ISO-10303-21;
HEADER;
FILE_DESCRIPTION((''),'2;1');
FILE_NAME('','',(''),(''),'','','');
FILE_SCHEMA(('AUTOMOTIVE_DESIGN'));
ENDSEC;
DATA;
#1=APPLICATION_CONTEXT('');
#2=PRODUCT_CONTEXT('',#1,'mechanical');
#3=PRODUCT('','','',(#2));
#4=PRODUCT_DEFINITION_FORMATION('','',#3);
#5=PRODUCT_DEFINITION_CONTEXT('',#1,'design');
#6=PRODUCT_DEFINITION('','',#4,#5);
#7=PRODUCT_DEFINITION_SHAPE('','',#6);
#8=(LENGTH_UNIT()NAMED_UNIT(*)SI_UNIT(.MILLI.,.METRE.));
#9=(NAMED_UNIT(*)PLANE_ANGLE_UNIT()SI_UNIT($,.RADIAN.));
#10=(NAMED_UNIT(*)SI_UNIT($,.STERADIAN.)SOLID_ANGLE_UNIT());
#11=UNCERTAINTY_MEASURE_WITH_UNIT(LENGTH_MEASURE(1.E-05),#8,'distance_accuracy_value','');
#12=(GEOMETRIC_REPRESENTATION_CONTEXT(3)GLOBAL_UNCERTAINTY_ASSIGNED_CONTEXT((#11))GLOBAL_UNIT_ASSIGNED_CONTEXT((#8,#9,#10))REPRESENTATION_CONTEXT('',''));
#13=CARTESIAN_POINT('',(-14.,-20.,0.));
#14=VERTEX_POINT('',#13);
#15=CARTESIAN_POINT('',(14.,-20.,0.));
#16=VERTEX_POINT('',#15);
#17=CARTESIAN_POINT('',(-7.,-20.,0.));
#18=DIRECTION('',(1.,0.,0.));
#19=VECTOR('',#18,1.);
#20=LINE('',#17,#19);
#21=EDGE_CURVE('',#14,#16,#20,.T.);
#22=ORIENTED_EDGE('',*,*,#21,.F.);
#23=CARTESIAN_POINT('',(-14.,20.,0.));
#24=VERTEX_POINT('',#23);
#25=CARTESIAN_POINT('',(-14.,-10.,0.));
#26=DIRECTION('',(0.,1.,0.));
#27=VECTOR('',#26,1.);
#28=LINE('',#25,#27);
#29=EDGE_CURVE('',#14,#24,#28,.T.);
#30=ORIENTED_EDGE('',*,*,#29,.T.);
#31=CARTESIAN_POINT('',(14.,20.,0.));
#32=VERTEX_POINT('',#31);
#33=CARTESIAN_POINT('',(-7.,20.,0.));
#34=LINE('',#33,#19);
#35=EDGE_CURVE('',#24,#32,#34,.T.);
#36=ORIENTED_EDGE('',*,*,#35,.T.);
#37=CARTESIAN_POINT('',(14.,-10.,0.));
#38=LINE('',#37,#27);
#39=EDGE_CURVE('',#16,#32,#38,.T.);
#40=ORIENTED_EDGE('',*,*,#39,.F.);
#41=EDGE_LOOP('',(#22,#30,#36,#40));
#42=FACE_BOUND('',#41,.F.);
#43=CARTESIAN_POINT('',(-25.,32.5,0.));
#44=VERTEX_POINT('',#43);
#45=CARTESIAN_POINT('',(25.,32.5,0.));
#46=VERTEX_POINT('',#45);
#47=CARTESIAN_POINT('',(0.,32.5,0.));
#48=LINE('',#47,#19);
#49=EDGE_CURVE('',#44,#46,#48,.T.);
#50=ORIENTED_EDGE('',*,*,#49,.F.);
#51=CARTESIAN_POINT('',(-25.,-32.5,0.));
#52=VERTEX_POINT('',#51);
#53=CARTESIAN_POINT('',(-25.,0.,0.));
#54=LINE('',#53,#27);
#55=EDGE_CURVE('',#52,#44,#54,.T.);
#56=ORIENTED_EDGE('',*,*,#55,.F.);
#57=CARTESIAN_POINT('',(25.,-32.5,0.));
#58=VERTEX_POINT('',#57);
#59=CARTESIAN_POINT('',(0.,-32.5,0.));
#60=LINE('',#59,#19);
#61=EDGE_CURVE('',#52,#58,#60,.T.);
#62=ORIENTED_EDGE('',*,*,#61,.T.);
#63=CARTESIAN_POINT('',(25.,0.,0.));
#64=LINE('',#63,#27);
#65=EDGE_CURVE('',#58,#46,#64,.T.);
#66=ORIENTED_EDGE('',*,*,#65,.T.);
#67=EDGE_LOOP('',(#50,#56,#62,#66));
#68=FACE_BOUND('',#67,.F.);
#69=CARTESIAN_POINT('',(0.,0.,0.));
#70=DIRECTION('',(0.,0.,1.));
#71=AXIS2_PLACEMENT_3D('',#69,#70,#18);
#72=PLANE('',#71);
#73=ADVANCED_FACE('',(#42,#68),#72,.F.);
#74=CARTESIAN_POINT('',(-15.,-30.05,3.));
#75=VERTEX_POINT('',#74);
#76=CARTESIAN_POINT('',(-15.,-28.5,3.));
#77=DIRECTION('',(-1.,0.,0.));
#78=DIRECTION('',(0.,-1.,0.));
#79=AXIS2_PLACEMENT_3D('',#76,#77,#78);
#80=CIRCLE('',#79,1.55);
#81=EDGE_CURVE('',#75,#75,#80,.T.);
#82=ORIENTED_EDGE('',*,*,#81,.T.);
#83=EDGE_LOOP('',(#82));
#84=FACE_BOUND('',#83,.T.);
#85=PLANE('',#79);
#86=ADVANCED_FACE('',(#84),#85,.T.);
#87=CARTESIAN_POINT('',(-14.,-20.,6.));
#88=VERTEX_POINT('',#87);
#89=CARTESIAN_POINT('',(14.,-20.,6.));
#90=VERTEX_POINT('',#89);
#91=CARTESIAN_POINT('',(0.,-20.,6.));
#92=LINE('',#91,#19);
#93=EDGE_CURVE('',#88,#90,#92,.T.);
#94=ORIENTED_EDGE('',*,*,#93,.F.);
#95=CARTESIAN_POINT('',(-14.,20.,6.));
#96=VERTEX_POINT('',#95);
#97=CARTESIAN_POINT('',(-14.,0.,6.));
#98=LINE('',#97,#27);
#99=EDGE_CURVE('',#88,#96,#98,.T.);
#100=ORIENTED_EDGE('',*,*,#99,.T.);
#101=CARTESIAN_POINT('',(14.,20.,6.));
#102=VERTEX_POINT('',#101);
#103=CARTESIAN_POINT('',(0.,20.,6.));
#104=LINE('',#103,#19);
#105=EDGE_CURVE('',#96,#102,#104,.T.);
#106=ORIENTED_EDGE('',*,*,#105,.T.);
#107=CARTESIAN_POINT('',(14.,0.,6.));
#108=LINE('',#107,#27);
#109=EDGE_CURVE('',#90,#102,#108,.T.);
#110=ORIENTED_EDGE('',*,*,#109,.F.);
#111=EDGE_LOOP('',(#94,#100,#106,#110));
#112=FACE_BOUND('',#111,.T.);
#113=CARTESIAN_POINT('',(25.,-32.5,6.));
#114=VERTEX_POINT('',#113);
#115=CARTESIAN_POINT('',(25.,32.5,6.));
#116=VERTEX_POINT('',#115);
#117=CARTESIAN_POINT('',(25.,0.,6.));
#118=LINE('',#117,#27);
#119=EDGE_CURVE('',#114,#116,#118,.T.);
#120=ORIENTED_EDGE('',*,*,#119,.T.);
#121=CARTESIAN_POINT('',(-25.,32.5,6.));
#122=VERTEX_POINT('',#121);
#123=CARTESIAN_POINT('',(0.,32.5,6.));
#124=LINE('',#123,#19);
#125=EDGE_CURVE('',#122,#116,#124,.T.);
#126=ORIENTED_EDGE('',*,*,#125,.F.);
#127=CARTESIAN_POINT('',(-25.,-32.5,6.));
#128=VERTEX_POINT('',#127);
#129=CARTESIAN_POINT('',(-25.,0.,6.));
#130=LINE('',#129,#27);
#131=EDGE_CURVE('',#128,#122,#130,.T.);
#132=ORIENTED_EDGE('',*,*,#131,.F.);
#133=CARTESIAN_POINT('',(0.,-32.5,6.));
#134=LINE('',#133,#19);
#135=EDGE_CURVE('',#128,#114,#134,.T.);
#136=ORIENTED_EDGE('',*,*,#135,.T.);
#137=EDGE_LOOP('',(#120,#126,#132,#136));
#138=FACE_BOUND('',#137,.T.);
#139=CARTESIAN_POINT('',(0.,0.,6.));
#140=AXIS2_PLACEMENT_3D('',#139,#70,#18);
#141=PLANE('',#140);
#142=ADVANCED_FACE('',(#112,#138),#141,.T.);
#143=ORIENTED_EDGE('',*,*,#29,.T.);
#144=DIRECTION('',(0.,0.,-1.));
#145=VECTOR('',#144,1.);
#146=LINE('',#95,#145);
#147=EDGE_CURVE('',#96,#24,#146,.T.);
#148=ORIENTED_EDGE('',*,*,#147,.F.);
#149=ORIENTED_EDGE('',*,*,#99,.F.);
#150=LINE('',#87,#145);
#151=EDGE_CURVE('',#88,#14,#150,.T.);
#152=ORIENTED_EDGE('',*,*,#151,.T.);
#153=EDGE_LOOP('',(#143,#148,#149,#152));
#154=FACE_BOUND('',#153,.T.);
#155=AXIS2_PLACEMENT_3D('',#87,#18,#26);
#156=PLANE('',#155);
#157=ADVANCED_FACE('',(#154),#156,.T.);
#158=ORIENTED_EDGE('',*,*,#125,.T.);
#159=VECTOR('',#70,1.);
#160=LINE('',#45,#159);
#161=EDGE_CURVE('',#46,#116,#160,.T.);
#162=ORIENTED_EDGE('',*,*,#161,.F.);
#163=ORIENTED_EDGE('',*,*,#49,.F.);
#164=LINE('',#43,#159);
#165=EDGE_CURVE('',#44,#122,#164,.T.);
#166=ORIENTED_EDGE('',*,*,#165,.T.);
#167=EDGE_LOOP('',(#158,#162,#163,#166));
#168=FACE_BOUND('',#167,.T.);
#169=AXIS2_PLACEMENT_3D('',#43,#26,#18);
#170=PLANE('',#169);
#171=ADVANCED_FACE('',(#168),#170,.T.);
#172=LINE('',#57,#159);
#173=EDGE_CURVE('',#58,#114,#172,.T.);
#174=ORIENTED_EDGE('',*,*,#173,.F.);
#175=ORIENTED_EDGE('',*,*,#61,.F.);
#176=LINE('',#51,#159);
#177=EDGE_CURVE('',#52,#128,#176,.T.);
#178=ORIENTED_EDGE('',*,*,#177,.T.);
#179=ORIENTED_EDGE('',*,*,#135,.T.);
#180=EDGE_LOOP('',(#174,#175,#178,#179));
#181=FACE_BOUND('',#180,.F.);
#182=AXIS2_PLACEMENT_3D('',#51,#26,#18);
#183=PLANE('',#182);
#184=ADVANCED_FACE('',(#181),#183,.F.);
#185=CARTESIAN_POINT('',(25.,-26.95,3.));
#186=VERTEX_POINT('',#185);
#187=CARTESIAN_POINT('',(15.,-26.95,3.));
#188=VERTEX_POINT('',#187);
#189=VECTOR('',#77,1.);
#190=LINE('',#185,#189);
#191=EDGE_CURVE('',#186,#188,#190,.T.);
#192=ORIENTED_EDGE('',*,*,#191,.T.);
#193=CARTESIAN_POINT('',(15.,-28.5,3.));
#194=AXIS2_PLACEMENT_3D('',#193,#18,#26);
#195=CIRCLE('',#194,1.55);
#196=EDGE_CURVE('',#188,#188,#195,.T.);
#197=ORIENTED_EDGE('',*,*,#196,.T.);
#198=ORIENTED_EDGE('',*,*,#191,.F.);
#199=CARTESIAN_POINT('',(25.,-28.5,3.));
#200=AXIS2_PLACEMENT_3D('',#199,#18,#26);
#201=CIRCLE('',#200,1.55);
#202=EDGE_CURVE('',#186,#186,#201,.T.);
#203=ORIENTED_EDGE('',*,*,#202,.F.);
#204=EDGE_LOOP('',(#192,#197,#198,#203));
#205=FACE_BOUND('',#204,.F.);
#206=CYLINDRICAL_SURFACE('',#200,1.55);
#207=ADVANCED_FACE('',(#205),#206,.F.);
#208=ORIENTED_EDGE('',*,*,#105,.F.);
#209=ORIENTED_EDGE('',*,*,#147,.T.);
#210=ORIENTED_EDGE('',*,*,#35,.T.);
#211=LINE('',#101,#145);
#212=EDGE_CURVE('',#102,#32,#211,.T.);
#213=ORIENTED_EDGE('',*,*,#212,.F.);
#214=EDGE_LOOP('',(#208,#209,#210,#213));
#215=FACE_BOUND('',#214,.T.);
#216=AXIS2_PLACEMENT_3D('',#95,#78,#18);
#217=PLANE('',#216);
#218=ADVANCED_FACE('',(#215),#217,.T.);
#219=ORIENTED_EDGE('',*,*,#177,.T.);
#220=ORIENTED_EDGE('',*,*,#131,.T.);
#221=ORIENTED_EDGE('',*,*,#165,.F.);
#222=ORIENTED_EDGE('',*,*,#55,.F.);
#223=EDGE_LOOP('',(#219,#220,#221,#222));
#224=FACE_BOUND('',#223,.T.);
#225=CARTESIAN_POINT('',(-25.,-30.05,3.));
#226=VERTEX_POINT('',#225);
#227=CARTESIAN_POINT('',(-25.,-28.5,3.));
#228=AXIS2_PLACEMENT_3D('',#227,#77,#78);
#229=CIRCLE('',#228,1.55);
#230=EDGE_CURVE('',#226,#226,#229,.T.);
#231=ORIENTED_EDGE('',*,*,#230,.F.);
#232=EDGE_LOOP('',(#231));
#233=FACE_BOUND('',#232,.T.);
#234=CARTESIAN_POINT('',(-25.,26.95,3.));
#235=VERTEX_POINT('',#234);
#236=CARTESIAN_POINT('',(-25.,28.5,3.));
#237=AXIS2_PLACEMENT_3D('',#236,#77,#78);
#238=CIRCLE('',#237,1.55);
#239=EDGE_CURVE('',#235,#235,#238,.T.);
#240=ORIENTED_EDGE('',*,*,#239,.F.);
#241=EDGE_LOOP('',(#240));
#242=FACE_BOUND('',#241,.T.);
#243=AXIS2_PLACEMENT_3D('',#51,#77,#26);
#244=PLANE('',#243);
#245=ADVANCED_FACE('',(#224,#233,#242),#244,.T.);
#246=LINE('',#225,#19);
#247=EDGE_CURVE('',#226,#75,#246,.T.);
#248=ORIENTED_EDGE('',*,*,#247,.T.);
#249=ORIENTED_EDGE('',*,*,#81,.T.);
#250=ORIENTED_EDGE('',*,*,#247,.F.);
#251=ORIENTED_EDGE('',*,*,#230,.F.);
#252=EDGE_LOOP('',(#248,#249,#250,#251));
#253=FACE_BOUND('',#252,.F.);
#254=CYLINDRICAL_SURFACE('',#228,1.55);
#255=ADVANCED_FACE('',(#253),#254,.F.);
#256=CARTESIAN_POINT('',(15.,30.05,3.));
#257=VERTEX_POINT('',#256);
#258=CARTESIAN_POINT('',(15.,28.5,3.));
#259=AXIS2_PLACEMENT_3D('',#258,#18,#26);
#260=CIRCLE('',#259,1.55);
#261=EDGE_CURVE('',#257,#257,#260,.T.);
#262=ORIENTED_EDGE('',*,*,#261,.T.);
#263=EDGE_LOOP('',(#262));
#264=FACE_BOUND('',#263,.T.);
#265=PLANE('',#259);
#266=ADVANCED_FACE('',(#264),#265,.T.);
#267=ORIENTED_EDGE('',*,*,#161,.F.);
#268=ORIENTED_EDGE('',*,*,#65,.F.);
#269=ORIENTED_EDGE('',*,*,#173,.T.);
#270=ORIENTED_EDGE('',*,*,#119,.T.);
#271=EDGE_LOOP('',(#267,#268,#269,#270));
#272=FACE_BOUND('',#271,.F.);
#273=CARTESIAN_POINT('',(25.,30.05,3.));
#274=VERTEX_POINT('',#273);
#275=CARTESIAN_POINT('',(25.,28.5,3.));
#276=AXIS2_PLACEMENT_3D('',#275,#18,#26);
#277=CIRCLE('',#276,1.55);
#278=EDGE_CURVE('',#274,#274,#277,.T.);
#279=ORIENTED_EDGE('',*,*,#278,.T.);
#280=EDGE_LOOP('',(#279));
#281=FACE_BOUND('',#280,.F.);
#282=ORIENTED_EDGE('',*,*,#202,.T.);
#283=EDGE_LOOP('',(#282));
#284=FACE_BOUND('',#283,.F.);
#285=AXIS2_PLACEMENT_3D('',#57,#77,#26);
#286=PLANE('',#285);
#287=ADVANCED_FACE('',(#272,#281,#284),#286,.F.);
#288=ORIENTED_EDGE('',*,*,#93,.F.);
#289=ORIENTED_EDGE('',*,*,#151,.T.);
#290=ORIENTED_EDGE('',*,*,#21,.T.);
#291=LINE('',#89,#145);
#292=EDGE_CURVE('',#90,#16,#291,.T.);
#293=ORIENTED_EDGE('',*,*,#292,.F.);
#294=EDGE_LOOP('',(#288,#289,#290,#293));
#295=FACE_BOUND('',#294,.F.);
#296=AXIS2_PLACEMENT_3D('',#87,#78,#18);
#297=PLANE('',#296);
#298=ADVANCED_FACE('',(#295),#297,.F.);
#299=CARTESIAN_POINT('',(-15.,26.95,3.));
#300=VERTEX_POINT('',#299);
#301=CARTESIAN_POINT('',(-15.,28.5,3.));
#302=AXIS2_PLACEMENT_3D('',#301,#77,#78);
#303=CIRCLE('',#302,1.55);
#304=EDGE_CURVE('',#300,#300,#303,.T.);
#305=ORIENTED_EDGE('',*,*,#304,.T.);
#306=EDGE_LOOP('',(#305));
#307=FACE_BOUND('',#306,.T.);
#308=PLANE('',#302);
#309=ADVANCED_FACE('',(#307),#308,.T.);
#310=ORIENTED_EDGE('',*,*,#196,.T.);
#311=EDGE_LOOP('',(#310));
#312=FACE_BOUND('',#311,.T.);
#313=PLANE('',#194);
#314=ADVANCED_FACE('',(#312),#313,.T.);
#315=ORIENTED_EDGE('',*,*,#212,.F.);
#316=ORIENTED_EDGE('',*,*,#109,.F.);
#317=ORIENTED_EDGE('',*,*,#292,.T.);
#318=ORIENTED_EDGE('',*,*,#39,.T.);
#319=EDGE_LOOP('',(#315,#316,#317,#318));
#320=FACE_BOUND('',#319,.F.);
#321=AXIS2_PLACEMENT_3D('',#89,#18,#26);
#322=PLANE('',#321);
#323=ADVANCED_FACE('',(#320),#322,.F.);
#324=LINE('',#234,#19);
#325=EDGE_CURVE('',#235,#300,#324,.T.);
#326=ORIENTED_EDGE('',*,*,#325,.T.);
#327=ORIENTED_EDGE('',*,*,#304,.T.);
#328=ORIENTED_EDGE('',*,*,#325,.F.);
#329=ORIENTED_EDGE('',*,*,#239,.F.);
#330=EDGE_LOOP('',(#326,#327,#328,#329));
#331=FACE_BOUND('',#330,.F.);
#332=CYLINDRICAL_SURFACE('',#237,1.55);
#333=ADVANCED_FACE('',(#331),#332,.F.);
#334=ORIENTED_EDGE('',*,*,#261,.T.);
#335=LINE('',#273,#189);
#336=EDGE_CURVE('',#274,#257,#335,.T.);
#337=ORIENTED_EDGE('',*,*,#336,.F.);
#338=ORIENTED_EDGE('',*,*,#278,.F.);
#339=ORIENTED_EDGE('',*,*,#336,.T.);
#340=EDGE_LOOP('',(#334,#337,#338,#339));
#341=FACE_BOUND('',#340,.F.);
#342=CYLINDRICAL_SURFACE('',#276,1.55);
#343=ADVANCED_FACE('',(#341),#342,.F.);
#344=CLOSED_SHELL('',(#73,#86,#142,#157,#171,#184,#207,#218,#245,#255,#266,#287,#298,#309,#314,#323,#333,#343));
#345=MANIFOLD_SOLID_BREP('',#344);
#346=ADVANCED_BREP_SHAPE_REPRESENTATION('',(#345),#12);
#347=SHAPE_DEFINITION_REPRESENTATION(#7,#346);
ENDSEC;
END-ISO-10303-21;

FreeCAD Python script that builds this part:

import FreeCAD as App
import Part
import Sketcher

V = App.Vector
Q = App.Units.Quantity

doc = App.newDocument("Part")
body = doc.addObject("PartDesign::Body", "Body")

sketch1 = body.newObject("Sketcher::SketchObject", "Sketch")
sketch1.AttachmentSupport = (doc.getObject("XY_Plane"), [""])
sketch1.MapMode = "FlatFace"
sketch1.addGeometry(Part.LineSegment(V(-25, 32, 0), V(-25, -32, 0)), False)
sketch1.addGeometry(Part.LineSegment(V(-25, -32, 0), V(25, -32, 0)), False)
sketch1.addGeometry(Part.LineSegment(V(25, -32, 0), V(25, 32, 0)), False)
sketch1.addGeometry(Part.LineSegment(V(25, 32, 0), V(-25, 32, 0)), False)
sketch1.addConstraint(Sketcher.Constraint("Coincident", 0, 2, 1, 1))
sketch1.addConstraint(Sketcher.Constraint("Coincident", 1, 2, 2, 1))
sketch1.addConstraint(Sketcher.Constraint("Coincident", 2, 2, 3, 1))
sketch1.addConstraint(Sketcher.Constraint("Coincident", 3, 2, 0, 1))
sketch1.addConstraint(Sketcher.Constraint("Vertical", 0))
sketch1.addConstraint(Sketcher.Constraint("Horizontal", 1))
sketch1.addConstraint(Sketcher.Constraint("Vertical", 2))
sketch1.addConstraint(Sketcher.Constraint("Horizontal", 3))
sketch1.addConstraint(Sketcher.Constraint("Symmetric", 0, 2, 2, 2, -1, 1))
sketch1.addConstraint(Sketcher.Constraint("DistanceX", 1, 1, 1, 2, Q("50 mm")))
sketch1.addConstraint(Sketcher.Constraint("DistanceY", 0, 2, 0, 1, Q("65 mm")))
pad1 = body.newObject("PartDesign::Pad", "Pad")
pad1.Profile = sketch1
pad1.Length = 6

sketch2 = body.newObject("Sketcher::SketchObject", "Sketch001")
sketch2.AttachmentSupport = (doc.getObject("XY_Plane"), [""])
sketch2.MapMode = "FlatFace"
sketch2.AttachmentOffset = App.Placement(V(0, 0, 6), App.Rotation())
sketch2.addGeometry(Part.LineSegment(V(-14, 20, 0), V(-14, -20, 0)), False)
sketch2.addGeometry(Part.LineSegment(V(-14, -20, 0), V(14, -20, 0)), False)
sketch2.addGeometry(Part.LineSegment(V(14, -20, 0), V(14, 20, 0)), False)
sketch2.addGeometry(Part.LineSegment(V(14, 20, 0), V(-14, 20, 0)), False)
sketch2.addConstraint(Sketcher.Constraint("Coincident", 0, 2, 1, 1))
sketch2.addConstraint(Sketcher.Constraint("Coincident", 1, 2, 2, 1))
sketch2.addConstraint(Sketcher.Constraint("Coincident", 2, 2, 3, 1))
sketch2.addConstraint(Sketcher.Constraint("Coincident", 3, 2, 0, 1))
sketch2.addConstraint(Sketcher.Constraint("Vertical", 0))
sketch2.addConstraint(Sketcher.Constraint("Horizontal", 1))
sketch2.addConstraint(Sketcher.Constraint("Vertical", 2))
sketch2.addConstraint(Sketcher.Constraint("Horizontal", 3))
sketch2.addConstraint(Sketcher.Constraint("Symmetric", 0, 2, 2, 2, -1, 1))
sketch2.addConstraint(Sketcher.Constraint("DistanceX", 1, 1, 1, 2, Q("28 mm")))
sketch2.addConstraint(Sketcher.Constraint("DistanceY", 0, 2, 0, 1, Q("40 mm")))
pocket1 = body.newObject("PartDesign::Pocket", "Pocket")
pocket1.Profile = sketch2
pocket1.Length = 25

sketch3 = body.newObject("Sketcher::SketchObject", "Sketch002")
sketch3.AttachmentSupport = (doc.getObject("YZ_Plane"), [""])
sketch3.MapMode = "FlatFace"
sketch3.AttachmentOffset = App.Placement(V(0, 0, 25), App.Rotation())
sketch3.addGeometry(Part.Circle(V(-28.5, 3, 0), V(0, 0, 1), 1.6), False)
sketch3.addGeometry(Part.Circle(V(28.5, 3, 0), V(0, 0, 1), 1.6), False)
sketch3.addConstraint(Sketcher.Constraint("Equal", 0, 1))
sketch3.addConstraint(Sketcher.Constraint("Symmetric", 0, 3, 1, 3, -2))
sketch3.addConstraint(Sketcher.Constraint("Diameter", 0, Q("3.1 mm")))
sketch3.addConstraint(Sketcher.Constraint("DistanceY", -1, 1, 0, 3, Q("3 mm")))
sketch3.addConstraint(Sketcher.Constraint("DistanceX", 0, 3, 1, 3, Q("57 mm")))
pocket2 = body.newObject("PartDesign::Pocket", "Pocket001")
pocket2.Profile = sketch3
pocket2.Length = 10

sketch4 = body.newObject("Sketcher::SketchObject", "Sketch003")
sketch4.AttachmentSupport = (doc.getObject("YZ_Plane"), [""])
sketch4.MapMode = "FlatFace"
sketch4.AttachmentOffset = App.Placement(V(0, 0, -25), App.Rotation())
sketch4.addGeometry(Part.Circle(V(28.5, 3, 0), V(0, 0, 1), 1.6), False)
sketch4.addGeometry(Part.Circle(V(-28.5, 3, 0), V(0, 0, 1), 1.6), False)
sketch4.addConstraint(Sketcher.Constraint("Equal", 0, 1))
sketch4.addConstraint(Sketcher.Constraint("Symmetric", 0, 3, 1, 3, -2))
sketch4.addConstraint(Sketcher.Constraint("Diameter", 0, Q("3.1 mm")))
sketch4.addConstraint(Sketcher.Constraint("DistanceY", -1, 1, 0, 3, Q("3 mm")))
sketch4.addConstraint(Sketcher.Constraint("DistanceX", 1, 3, 0, 3, Q("57 mm")))
pocket3 = body.newObject("PartDesign::Pocket", "Pocket002")
pocket3.Profile = sketch4
pocket3.Length = 10
pocket3.Reversed = True

doc.recompute()
